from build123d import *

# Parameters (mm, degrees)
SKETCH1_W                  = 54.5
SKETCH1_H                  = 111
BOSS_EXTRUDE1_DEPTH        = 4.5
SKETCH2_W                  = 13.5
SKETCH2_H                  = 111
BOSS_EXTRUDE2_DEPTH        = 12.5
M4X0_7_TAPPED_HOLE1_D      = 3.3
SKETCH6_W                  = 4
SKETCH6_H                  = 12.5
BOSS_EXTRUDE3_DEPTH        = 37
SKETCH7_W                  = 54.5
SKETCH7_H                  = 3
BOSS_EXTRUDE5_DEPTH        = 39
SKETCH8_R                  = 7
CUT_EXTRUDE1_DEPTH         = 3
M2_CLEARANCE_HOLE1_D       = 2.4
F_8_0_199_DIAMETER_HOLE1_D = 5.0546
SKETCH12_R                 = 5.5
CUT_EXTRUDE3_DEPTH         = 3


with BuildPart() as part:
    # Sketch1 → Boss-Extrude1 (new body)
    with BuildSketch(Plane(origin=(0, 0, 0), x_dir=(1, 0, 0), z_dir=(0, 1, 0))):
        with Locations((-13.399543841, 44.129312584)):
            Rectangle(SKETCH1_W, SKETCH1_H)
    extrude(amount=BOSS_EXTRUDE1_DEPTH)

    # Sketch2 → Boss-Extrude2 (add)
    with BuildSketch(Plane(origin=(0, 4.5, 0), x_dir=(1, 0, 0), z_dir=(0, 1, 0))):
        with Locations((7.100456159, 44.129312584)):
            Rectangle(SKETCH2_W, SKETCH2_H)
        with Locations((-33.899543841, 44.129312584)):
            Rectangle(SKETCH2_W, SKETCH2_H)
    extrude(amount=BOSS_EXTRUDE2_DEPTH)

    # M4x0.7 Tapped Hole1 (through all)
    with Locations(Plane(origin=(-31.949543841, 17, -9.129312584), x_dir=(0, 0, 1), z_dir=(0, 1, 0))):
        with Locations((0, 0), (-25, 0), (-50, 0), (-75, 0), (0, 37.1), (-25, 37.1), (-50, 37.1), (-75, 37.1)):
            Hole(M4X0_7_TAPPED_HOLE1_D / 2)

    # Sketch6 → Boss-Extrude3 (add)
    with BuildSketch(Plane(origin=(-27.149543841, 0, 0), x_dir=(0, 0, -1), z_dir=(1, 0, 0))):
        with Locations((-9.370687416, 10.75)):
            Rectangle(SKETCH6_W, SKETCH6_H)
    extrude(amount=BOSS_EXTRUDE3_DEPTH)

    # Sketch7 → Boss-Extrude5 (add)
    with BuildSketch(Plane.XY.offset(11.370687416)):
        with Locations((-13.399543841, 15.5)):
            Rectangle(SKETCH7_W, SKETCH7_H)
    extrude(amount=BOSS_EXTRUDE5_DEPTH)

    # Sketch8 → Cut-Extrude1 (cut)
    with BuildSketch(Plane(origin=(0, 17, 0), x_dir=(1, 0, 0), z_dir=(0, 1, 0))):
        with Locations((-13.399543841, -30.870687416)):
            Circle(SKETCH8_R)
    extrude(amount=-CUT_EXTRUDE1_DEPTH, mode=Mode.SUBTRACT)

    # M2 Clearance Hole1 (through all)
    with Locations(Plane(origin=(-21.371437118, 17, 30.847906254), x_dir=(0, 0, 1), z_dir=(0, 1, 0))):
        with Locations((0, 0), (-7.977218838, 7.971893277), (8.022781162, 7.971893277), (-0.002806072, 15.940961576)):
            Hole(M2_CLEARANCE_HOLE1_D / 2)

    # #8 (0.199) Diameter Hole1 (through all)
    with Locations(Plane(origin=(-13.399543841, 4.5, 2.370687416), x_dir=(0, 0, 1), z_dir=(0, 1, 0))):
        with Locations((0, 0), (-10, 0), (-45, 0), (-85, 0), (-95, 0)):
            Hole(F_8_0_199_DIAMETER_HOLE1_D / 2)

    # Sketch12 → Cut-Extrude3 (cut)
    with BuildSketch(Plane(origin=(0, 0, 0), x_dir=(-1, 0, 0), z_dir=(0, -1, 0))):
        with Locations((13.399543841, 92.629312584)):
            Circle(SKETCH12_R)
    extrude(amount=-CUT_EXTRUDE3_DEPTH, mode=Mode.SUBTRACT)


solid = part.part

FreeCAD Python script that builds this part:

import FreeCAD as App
import Part
import Sketcher


def add_polygon(sketch, points):
    """Adds a closed chain of lines whose ends are joined by coincident constraints."""
    first, n = sketch.GeometryCount, len(points)
    for a, b in zip(points, points[1:] + points[:1]):
        sketch.addGeometry(Part.LineSegment(App.Vector(*a, 0), App.Vector(*b, 0)), False)
    for i in range(n):
        sketch.addConstraint(Sketcher.Constraint("Coincident", first + i, 2, first + (i + 1) % n, 1))

doc = App.newDocument("Part")
body = doc.addObject("PartDesign::Body", "Body")

# Sketch on XZ plane
sketch1 = doc.addObject("Sketcher::SketchObject", "Sketch")
body.addObject(sketch1)
sketch1.AttachmentSupport = (doc.XZ_Plane, [""])
sketch1.MapMode = "FlatFace"
add_polygon(sketch1, [(-40.649544, -99.629313), (-40.649544, 11.370687), (13.850456, 11.370687), (13.850456, -99.629313)])  # lines 0-3
sketch1.addConstraint(Sketcher.Constraint("Vertical", 0))
sketch1.addConstraint(Sketcher.Constraint("Horizontal", 1))
sketch1.addConstraint(Sketcher.Constraint("Vertical", 2))
sketch1.addConstraint(Sketcher.Constraint("Horizontal", 3))
sketch1.addConstraint(Sketcher.Constraint("DistanceY", 0, 1, 0, 2, 111.0))
sketch1.addConstraint(Sketcher.Constraint("DistanceX", 1, 1, 1, 2, 54.5))
sketch1.addConstraint(Sketcher.Constraint("DistanceX", 0, 2, -1, 1, 40.649544))
sketch1.addConstraint(Sketcher.Constraint("DistanceY", -1, 1, 0, 2, 11.370687))
pad1 = doc.addObject("PartDesign::Pad", "Pad")
body.addObject(pad1)
pad1.Profile = sketch1
pad1.Length = 4.5
pad1.Reversed = True

# Sketch on XZ plane
sketch2 = doc.addObject("Sketcher::SketchObject", "Sketch001")
body.addObject(sketch2)
sketch2.AttachmentSupport = (doc.XZ_Plane, [""])
sketch2.MapMode = "FlatFace"
sketch2.AttachmentOffset = App.Placement(App.Vector(0, 0, -4.5), App.Rotation())
add_polygon(sketch2, [(0.350456, -99.629313), (0.350456, 11.370687), (13.850456, 11.370687), (13.850456, -99.629313)])  # lines 0-3
add_polygon(sketch2, [(-40.649544, -99.629313), (-40.649544, 11.370687), (-27.149544, 11.370687), (-27.149544, -99.629313)])  # lines 4-7
sketch2.addConstraint(Sketcher.Constraint("Vertical", 0))
sketch2.addConstraint(Sketcher.Constraint("Horizontal", 1))
sketch2.addConstraint(Sketcher.Constraint("Vertical", 2))
sketch2.addConstraint(Sketcher.Constraint("Horizontal", 3))
sketch2.addConstraint(Sketcher.Constraint("Vertical", 4))
sketch2.addConstraint(Sketcher.Constraint("Horizontal", 5))
sketch2.addConstraint(Sketcher.Constraint("Vertical", 6))
sketch2.addConstraint(Sketcher.Constraint("Horizontal", 7))
sketch2.addConstraint(Sketcher.Constraint("Horizontal", 1, 2, 4, 2))
sketch2.addConstraint(Sketcher.Constraint("Horizontal", 3, 2, 6, 2))
sketch2.addConstraint(Sketcher.Constraint("Equal", 3, 5))
sketch2.addConstraint(Sketcher.Constraint("DistanceY", 0, 1, 0, 2, 111.0))
sketch2.addConstraint(Sketcher.Constraint("DistanceX", 1, 1, 1, 2, 13.5))
sketch2.addConstraint(Sketcher.Constraint("DistanceX", 4, 2, 0, 2, 41.0))
sketch2.addConstraint(Sketcher.Constraint("DistanceX", -1, 1, 0, 2, 0.350456))
sketch2.addConstraint(Sketcher.Constraint("DistanceY", -1, 1, 0, 2, 11.370687))
pad2 = doc.addObject("PartDesign::Pad", "Pad001")
body.addObject(pad2)
pad2.Profile = sketch2
pad2.Length = 12.5
pad2.Reversed = True

# Sketch on XZ plane
sketch3 = doc.addObject("Sketcher::SketchObject", "Sketch002")
body.addObject(sketch3)
sketch3.AttachmentSupport = (doc.XZ_Plane, [""])
sketch3.MapMode = "FlatFace"
sketch3.AttachmentOffset = App.Placement(App.Vector(0, 0, -17), App.Rotation())
sketch3.addGeometry(Part.Circle(App.Vector(-31.949544, -9.129313, 0), App.Vector(0, 0, 1), 1.65), False)
sketch3.addGeometry(Part.Circle(App.Vector(-31.949544, -34.129313, 0), App.Vector(0, 0, 1), 1.65), False)
sketch3.addGeometry(Part.Circle(App.Vector(-31.949544, -59.129313, 0), App.Vector(0, 0, 1), 1.65), False)
sketch3.addGeometry(Part.Circle(App.Vector(-31.949544, -84.129313, 0), App.Vector(0, 0, 1), 1.65), False)
sketch3.addGeometry(Part.Circle(App.Vector(5.150456, -9.129313, 0), App.Vector(0, 0, 1), 1.65), False)
sketch3.addGeometry(Part.Circle(App.Vector(5.150456, -34.129313, 0), App.Vector(0, 0, 1), 1.65), False)
sketch3.addGeometry(Part.Circle(App.Vector(5.150456, -59.129313, 0), App.Vector(0, 0, 1), 1.65), False)
sketch3.addGeometry(Part.Circle(App.Vector(5.150456, -84.129313, 0), App.Vector(0, 0, 1), 1.65), False)
sketch3.addConstraint(Sketcher.Constraint("Equal", 0, 1))
sketch3.addConstraint(Sketcher.Constraint("Equal", 1, 2))
sketch3.addConstraint(Sketcher.Constraint("Equal", 2, 3))
sketch3.addConstraint(Sketcher.Constraint("Equal", 3, 4))
sketch3.addConstraint(Sketcher.Constraint("Equal", 4, 5))
sketch3.addConstraint(Sketcher.Constraint("Equal", 5, 6))
sketch3.addConstraint(Sketcher.Constraint("Equal", 6, 7))
sketch3.addConstraint(Sketcher.Constraint("Horizontal", 0, 3, 4, 3))
sketch3.addConstraint(Sketcher.Constraint("Horizontal", 1, 3, 5, 3))
sketch3.addConstraint(Sketcher.Constraint("Horizontal", 2, 3, 6, 3))
sketch3.addConstraint(Sketcher.Constraint("Horizontal", 3, 3, 7, 3))
sketch3.addConstraint(Sketcher.Constraint("Vertical", 0, 3, 1, 3))
sketch3.addConstraint(Sketcher.Constraint("Vertical", 1, 3, 2, 3))
sketch3.addConstraint(Sketcher.Constraint("Vertical", 2, 3, 3, 3))
sketch3.addConstraint(Sketcher.Constraint("Vertical", 4, 3, 5, 3))
sketch3.addConstraint(Sketcher.Constraint("Vertical", 5, 3, 6, 3))
sketch3.addConstraint(Sketcher.Constraint("Vertical", 6, 3, 7, 3))
sketch3.addConstraint(Sketcher.Constraint("Diameter", 0, 3.3))
sketch3.addConstraint(Sketcher.Constraint("DistanceY", 1, 3, 0, 3, 25.0))
sketch3.addConstraint(Sketcher.Constraint("DistanceY", 2, 3, 1, 3, 25.0))
sketch3.addConstraint(Sketcher.Constraint("DistanceY", 3, 3, 2, 3, 25.0))
sketch3.addConstraint(Sketcher.Constraint("DistanceX", 0, 3, 4, 3, 37.1))
sketch3.addConstraint(Sketcher.Constraint("DistanceX", 0, 3, -1, 1, 31.949544))
sketch3.addConstraint(Sketcher.Constraint("DistanceY", 0, 3, -1, 1, 9.129313))
doc.recompute()
hole = doc.addObject("PartDesign::Hole", "Hole")
body.addObject(hole)
hole.Profile = sketch3
hole.ThreadType = "None"
hole.Diameter = 3.3
hole.DepthType = "ThroughAll"
hole.Reversed = True

# Sketch on YZ plane
sketch4 = doc.addObject("Sketcher::SketchObject", "Sketch003")
body.addObject(sketch4)
sketch4.AttachmentSupport = (doc.YZ_Plane, [""])
sketch4.MapMode = "FlatFace"
sketch4.AttachmentOffset = App.Placement(App.Vector(0, 0, -27.149544), App.Rotation())
add_polygon(sketch4, [(17, 11.370687), (4.5, 11.370687), (4.5, 7.370687), (17, 7.370687)])  # lines 0-3
sketch4.addConstraint(Sketcher.Constraint("Horizontal", 0))
sketch4.addConstraint(Sketcher.Constraint("Vertical", 1))
sketch4.addConstraint(Sketcher.Constraint("Horizontal", 2))
sketch4.addConstraint(Sketcher.Constraint("Vertical", 3))
sketch4.addConstraint(Sketcher.Constraint("DistanceY", 1, 2, 1, 1, 4.0))
sketch4.addConstraint(Sketcher.Constraint("DistanceX", 0, 2, 0, 1, 12.5))
sketch4.addConstraint(Sketcher.Constraint("DistanceX", -1, 1, 2, 2, 17.0))
sketch4.addConstraint(Sketcher.Constraint("DistanceY", -1, 1, 0, 2, 11.370687))
pad3 = doc.addObject("PartDesign::Pad", "Pad002")
body.addObject(pad3)
pad3.Profile = sketch4
pad3.Length = 37

# Sketch on XY plane
sketch5 = doc.addObject("Sketcher::SketchObject", "Sketch004")
body.addObject(sketch5)
sketch5.AttachmentSupport = (doc.XY_Plane, [""])
sketch5.MapMode = "FlatFace"
sketch5.AttachmentOffset = App.Placement(App.Vector(0, 0, 11.370687), App.Rotation())
add_polygon(sketch5, [(-40.649544, 17), (-40.649544, 14), (13.850456, 14), (13.850456, 17)])  # lines 0-3
sketch5.addConstraint(Sketcher.Constraint("Vertical", 0))
sketch5.addConstraint(Sketcher.Constraint("Horizontal", 1))
sketch5.addConstraint(Sketcher.Constraint("Vertical", 2))
sketch5.addConstraint(Sketcher.Constraint("Horizontal", 3))
sketch5.addConstraint(Sketcher.Constraint("DistanceY", 0, 2, 0, 1, 3.0))
sketch5.addConstraint(Sketcher.Constraint("DistanceX", 1, 1, 1, 2, 54.5))
sketch5.addConstraint(Sketcher.Constraint("DistanceY", -1, 1, 0, 2, 14.0))
sketch5.addConstraint(Sketcher.Constraint("DistanceX", 0, 2, -1, 1, 40.649544))
pad4 = doc.addObject("PartDesign::Pad", "Pad003")
body.addObject(pad4)
pad4.Profile = sketch5
pad4.Length = 39

# Sketch on XZ plane
sketch6 = doc.addObject("Sketcher::SketchObject", "Sketch005")
body.addObject(sketch6)
sketch6.AttachmentSupport = (doc.XZ_Plane, [""])
sketch6.MapMode = "FlatFace"
sketch6.AttachmentOffset = App.Placement(App.Vector(0, 0, -17), App.Rotation())
sketch6.addGeometry(Part.Circle(App.Vector(-13.399544, 30.870687, 0), App.Vector(0, 0, 1), 7), False)
sketch6.addConstraint(Sketcher.Constraint("Diameter", 0, 14.0))
sketch6.addConstraint(Sketcher.Constraint("DistanceX", 0, 3, -1, 1, 13.399544))
sketch6.addConstraint(Sketcher.Constraint("DistanceY", -1, 1, 0, 3, 30.870687))
pocket1 = doc.addObject("PartDesign::Pocket", "Pocket")
body.addObject(pocket1)
pocket1.Profile = sketch6
pocket1.Length = 3
pocket1.Reversed = True

# Sketch on XZ plane
sketch7 = doc.addObject("Sketcher::SketchObject", "Sketch006")
body.addObject(sketch7)
sketch7.AttachmentSupport = (doc.XZ_Plane, [""])
sketch7.MapMode = "FlatFace"
sketch7.AttachmentOffset = App.Placement(App.Vector(0, 0, -17), App.Rotation())
sketch7.addGeometry(Part.Circle(App.Vector(-21.371437, 30.847906, 0), App.Vector(0, 0, 1), 1.2), False)
sketch7.addGeometry(Part.Circle(App.Vector(-13.399544, 22.870687, 0), App.Vector(0, 0, 1), 1.2), False)
sketch7.addGeometry(Part.Circle(App.Vector(-13.399544, 38.870687, 0), App.Vector(0, 0, 1), 1.2), False)
sketch7.addGeometry(Part.Circle(App.Vector(-5.430476, 30.8451, 0), App.Vector(0, 0, 1), 1.2), False)
sketch7.addConstraint(Sketcher.Constraint("Equal", 0, 1))
sketch7.addConstraint(Sketcher.Constraint("Equal", 1, 2))
sketch7.addConstraint(Sketcher.Constraint("Equal", 2, 3))
sketch7.addConstraint(Sketcher.Constraint("Vertical", 1, 3, 2, 3))
sketch7.addConstraint(Sketcher.Constraint("Diameter", 0, 2.4))
sketch7.addConstraint(Sketcher.Constraint("DistanceY", 1, 3, 2, 3, 16.0))
sketch7.addConstraint(Sketcher.Constraint("DistanceY", -1, 1, 3, 3, 30.8451))
sketch7.addConstraint(Sketcher.Constraint("DistanceY", 1, 3, 0, 3, 7.977219))
sketch7.addConstraint(Sketcher.Constraint("DistanceX", 1, 3, 3, 3, 7.969068))
sketch7.addConstraint(Sketcher.Constraint("DistanceX", 0, 3, 3, 3, 15.940962))
sketch7.addConstraint(Sketcher.Constraint("DistanceX", 0, 3, -1, 1, 21.371437))
sketch7.addConstraint(Sketcher.Constraint("DistanceY", -1, 1, 0, 3, 30.847906))
doc.recompute()
hole2 = doc.addObject("PartDesign::Hole", "Hole001")
body.addObject(hole2)
hole2.Profile = sketch7
hole2.ThreadType = "None"
hole2.Diameter = 2.4
hole2.DepthType = "ThroughAll"
hole2.Reversed = True

# Sketch on XZ plane
sketch8 = doc.addObject("Sketcher::SketchObject", "Sketch007")
body.addObject(sketch8)
sketch8.AttachmentSupport = (doc.XZ_Plane, [""])
sketch8.MapMode = "FlatFace"
sketch8.AttachmentOffset = App.Placement(App.Vector(0, 0, -4.5), App.Rotation())
sketch8.addGeometry(Part.Circle(App.Vector(-13.399544, 2.370687, 0), App.Vector(0, 0, 1), 2.5273), False)
sketch8.addGeometry(Part.Circle(App.Vector(-13.399544, -7.629313, 0), App.Vector(0, 0, 1), 2.5273), False)
sketch8.addGeometry(Part.Circle(App.Vector(-13.399544, -42.629313, 0), App.Vector(0, 0, 1), 2.5273), False)
sketch8.addGeometry(Part.Circle(App.Vector(-13.399544, -82.629313, 0), App.Vector(0, 0, 1), 2.5273), False)
sketch8.addGeometry(Part.Circle(App.Vector(-13.399544, -92.629313, 0), App.Vector(0, 0, 1), 2.5273), False)
sketch8.addConstraint(Sketcher.Constraint("Equal", 0, 1))
sketch8.addConstraint(Sketcher.Constraint("Equal", 1, 2))
sketch8.addConstraint(Sketcher.Constraint("Equal", 2, 3))
sketch8.addConstraint(Sketcher.Constraint("Equal", 3, 4))
sketch8.addConstraint(Sketcher.Constraint("Vertical", 0, 3, 1, 3))
sketch8.addConstraint(Sketcher.Constraint("Vertical", 1, 3, 2, 3))
sketch8.addConstraint(Sketcher.Constraint("Vertical", 2, 3, 3, 3))
sketch8.addConstraint(Sketcher.Constraint("Vertical", 3, 3, 4, 3))
sketch8.addConstraint(Sketcher.Constraint("DistanceY", 1, 3, 0, 3, 10.0))
sketch8.addConstraint(Sketcher.Constraint("DistanceY", 2, 3, 1, 3, 35.0))
sketch8.addConstraint(Sketcher.Constraint("DistanceY", 3, 3, 2, 3, 40.0))
sketch8.addConstraint(Sketcher.Constraint("DistanceY", 4, 3, 3, 3, 10.0))
sketch8.addConstraint(Sketcher.Constraint("Diameter", 0, 5.0546))
sketch8.addConstraint(Sketcher.Constraint("DistanceX", 0, 3, -1, 1, 13.399544))
sketch8.addConstraint(Sketcher.Constraint("DistanceY", -1, 1, 0, 3, 2.370687))
doc.recompute()
hole3 = doc.addObject("PartDesign::Hole", "Hole002")
body.addObject(hole3)
hole3.Profile = sketch8
hole3.ThreadType = "None"
hole3.Diameter = 5.0546
hole3.DepthType = "ThroughAll"
hole3.Reversed = True

# Sketch on XZ plane
sketch9 = doc.addObject("Sketcher::SketchObject", "Sketch008")
body.addObject(sketch9)
sketch9.AttachmentSupport = (doc.XZ_Plane, [""])
sketch9.MapMode = "FlatFace"
sketch9.addGeometry(Part.Circle(App.Vector(-13.399544, -92.629313, 0), App.Vector(0, 0, 1), 5.5), False)
sketch9.addConstraint(Sketcher.Constraint("Diameter", 0, 11.0))
sketch9.addConstraint(Sketcher.Constraint("DistanceX", 0, 3, -1, 1, 13.399544))
sketch9.addConstraint(Sketcher.Constraint("DistanceY", 0, 3, -1, 1, 92.629313))
pocket2 = doc.addObject("PartDesign::Pocket", "Pocket001")
body.addObject(pocket2)
pocket2.Profile = sketch9
pocket2.Length = 3

doc.recompute()
